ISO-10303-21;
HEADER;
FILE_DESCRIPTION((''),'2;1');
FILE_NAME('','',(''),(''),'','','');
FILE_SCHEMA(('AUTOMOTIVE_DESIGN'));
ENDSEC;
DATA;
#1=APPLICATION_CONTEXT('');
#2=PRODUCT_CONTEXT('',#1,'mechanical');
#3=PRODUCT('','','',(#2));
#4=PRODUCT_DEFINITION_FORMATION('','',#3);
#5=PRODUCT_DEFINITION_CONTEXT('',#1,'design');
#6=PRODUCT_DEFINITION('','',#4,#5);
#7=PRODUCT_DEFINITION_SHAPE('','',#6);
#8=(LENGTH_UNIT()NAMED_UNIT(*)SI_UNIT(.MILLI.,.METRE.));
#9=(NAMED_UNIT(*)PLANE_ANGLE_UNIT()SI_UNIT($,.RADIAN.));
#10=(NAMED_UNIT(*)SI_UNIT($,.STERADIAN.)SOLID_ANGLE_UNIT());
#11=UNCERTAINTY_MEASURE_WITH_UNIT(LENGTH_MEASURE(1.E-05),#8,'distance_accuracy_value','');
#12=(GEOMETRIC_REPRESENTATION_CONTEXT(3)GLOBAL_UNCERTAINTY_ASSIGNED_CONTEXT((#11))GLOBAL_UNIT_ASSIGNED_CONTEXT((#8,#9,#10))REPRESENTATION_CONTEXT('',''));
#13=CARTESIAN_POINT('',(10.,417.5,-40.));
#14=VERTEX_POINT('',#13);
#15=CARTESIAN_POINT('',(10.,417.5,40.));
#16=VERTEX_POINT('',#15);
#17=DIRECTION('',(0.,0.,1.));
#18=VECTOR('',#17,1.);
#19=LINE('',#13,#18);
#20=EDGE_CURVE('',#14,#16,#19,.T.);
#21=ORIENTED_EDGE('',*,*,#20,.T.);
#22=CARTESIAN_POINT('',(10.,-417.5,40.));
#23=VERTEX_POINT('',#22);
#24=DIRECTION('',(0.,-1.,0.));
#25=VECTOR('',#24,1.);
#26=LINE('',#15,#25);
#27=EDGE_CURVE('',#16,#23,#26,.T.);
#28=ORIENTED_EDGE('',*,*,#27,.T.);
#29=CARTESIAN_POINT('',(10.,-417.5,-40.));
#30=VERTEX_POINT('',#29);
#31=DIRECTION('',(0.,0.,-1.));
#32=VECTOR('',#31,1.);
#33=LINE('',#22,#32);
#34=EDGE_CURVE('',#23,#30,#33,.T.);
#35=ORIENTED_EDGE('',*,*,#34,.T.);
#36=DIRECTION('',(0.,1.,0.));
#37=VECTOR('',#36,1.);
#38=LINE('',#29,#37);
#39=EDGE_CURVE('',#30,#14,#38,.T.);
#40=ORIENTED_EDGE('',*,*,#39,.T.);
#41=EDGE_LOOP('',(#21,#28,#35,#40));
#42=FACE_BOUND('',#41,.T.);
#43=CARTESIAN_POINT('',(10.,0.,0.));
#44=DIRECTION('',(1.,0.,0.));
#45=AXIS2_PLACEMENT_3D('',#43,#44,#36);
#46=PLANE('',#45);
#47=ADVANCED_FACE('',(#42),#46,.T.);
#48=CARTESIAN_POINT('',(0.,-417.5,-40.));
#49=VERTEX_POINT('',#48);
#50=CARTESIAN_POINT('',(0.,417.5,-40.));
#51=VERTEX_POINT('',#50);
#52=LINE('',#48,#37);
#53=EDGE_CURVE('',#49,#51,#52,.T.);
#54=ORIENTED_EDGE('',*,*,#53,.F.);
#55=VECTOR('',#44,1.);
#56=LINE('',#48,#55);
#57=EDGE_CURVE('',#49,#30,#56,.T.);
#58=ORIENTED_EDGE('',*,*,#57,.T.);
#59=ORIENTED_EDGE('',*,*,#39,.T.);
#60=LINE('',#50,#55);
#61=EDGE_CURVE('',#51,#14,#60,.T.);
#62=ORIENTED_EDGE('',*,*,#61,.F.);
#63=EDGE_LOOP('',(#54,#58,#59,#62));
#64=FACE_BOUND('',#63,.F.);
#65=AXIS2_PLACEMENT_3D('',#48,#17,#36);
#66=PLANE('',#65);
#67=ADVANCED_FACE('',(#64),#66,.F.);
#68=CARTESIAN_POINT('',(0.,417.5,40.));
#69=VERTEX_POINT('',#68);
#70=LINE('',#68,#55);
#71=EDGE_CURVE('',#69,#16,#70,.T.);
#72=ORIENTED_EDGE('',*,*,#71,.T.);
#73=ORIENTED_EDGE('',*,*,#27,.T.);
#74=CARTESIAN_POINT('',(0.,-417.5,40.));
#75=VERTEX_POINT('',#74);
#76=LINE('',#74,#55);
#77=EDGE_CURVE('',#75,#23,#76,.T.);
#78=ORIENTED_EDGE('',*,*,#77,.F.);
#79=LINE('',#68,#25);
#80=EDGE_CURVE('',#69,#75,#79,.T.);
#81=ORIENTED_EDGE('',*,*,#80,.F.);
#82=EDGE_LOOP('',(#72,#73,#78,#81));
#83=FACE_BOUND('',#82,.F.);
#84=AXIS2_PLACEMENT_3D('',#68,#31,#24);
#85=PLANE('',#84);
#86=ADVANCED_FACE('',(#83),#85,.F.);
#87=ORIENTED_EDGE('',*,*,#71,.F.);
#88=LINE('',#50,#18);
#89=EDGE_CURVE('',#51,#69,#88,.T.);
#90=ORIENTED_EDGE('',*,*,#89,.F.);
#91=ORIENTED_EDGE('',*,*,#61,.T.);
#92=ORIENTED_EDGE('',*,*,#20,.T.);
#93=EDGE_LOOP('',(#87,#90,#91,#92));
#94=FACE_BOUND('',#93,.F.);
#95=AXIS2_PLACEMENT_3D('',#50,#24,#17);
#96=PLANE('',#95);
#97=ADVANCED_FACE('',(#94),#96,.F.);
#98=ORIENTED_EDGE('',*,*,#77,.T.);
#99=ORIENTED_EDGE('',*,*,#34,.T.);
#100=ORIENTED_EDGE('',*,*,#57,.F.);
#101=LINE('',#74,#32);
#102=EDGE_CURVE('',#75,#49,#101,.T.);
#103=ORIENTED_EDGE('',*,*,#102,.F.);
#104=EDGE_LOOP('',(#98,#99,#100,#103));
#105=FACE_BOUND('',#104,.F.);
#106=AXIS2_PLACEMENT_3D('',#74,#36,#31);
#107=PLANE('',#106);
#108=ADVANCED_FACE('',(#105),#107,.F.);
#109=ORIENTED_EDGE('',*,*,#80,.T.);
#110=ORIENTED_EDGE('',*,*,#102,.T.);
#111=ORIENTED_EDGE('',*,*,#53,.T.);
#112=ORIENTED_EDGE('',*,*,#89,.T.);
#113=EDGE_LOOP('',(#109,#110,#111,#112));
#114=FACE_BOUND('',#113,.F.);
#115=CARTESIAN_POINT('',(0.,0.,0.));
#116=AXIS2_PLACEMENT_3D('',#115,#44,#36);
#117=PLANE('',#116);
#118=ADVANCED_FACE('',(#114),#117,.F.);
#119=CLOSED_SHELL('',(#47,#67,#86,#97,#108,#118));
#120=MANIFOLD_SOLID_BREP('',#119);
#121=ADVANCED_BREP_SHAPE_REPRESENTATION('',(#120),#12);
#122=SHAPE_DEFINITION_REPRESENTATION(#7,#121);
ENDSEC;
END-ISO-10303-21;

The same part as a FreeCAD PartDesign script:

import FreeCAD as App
import Part
import Sketcher
Q = App.Units.Quantity


def add_polygon(sketch, points):
    """Adds a closed chain of lines whose ends are joined by coincident constraints."""
    first, n = sketch.GeometryCount, len(points)
    for a, b in zip(points, points[1:] + points[:1]):
        sketch.addGeometry(Part.LineSegment(App.Vector(*a, 0), App.Vector(*b, 0)), False)
    for i in range(n):
        sketch.addConstraint(Sketcher.Constraint("Coincident", first + i, 2, first + (i + 1) % n, 1))

doc = App.newDocument("Part")
body = doc.addObject("PartDesign::Body", "Body")

sketch1 = body.newObject("Sketcher::SketchObject", "Sketch")
sketch1.AttachmentSupport = (doc.getObject("YZ_Plane"), [""])
sketch1.MapMode = "FlatFace"
add_polygon(sketch1, [(-418, 40), (-418, -40), (418, -40), (418, 40)])
sketch1.addConstraint(Sketcher.Constraint("Vertical", 0))
sketch1.addConstraint(Sketcher.Constraint("Horizontal", 1))
sketch1.addConstraint(Sketcher.Constraint("Vertical", 2))
sketch1.addConstraint(Sketcher.Constraint("Horizontal", 3))
sketch1.addConstraint(Sketcher.Constraint("Symmetric", 0, 2, 2, 2, -1, 1))
sketch1.addConstraint(Sketcher.Constraint("DistanceX", 1, 1, 1, 2, Q("835 mm")))
sketch1.addConstraint(Sketcher.Constraint("DistanceY", 0, 2, 0, 1, Q("80 mm")))
pad1 = body.newObject("PartDesign::Pad", "Pad")
pad1.Profile = sketch1
pad1.Length = 10

doc.recompute()
